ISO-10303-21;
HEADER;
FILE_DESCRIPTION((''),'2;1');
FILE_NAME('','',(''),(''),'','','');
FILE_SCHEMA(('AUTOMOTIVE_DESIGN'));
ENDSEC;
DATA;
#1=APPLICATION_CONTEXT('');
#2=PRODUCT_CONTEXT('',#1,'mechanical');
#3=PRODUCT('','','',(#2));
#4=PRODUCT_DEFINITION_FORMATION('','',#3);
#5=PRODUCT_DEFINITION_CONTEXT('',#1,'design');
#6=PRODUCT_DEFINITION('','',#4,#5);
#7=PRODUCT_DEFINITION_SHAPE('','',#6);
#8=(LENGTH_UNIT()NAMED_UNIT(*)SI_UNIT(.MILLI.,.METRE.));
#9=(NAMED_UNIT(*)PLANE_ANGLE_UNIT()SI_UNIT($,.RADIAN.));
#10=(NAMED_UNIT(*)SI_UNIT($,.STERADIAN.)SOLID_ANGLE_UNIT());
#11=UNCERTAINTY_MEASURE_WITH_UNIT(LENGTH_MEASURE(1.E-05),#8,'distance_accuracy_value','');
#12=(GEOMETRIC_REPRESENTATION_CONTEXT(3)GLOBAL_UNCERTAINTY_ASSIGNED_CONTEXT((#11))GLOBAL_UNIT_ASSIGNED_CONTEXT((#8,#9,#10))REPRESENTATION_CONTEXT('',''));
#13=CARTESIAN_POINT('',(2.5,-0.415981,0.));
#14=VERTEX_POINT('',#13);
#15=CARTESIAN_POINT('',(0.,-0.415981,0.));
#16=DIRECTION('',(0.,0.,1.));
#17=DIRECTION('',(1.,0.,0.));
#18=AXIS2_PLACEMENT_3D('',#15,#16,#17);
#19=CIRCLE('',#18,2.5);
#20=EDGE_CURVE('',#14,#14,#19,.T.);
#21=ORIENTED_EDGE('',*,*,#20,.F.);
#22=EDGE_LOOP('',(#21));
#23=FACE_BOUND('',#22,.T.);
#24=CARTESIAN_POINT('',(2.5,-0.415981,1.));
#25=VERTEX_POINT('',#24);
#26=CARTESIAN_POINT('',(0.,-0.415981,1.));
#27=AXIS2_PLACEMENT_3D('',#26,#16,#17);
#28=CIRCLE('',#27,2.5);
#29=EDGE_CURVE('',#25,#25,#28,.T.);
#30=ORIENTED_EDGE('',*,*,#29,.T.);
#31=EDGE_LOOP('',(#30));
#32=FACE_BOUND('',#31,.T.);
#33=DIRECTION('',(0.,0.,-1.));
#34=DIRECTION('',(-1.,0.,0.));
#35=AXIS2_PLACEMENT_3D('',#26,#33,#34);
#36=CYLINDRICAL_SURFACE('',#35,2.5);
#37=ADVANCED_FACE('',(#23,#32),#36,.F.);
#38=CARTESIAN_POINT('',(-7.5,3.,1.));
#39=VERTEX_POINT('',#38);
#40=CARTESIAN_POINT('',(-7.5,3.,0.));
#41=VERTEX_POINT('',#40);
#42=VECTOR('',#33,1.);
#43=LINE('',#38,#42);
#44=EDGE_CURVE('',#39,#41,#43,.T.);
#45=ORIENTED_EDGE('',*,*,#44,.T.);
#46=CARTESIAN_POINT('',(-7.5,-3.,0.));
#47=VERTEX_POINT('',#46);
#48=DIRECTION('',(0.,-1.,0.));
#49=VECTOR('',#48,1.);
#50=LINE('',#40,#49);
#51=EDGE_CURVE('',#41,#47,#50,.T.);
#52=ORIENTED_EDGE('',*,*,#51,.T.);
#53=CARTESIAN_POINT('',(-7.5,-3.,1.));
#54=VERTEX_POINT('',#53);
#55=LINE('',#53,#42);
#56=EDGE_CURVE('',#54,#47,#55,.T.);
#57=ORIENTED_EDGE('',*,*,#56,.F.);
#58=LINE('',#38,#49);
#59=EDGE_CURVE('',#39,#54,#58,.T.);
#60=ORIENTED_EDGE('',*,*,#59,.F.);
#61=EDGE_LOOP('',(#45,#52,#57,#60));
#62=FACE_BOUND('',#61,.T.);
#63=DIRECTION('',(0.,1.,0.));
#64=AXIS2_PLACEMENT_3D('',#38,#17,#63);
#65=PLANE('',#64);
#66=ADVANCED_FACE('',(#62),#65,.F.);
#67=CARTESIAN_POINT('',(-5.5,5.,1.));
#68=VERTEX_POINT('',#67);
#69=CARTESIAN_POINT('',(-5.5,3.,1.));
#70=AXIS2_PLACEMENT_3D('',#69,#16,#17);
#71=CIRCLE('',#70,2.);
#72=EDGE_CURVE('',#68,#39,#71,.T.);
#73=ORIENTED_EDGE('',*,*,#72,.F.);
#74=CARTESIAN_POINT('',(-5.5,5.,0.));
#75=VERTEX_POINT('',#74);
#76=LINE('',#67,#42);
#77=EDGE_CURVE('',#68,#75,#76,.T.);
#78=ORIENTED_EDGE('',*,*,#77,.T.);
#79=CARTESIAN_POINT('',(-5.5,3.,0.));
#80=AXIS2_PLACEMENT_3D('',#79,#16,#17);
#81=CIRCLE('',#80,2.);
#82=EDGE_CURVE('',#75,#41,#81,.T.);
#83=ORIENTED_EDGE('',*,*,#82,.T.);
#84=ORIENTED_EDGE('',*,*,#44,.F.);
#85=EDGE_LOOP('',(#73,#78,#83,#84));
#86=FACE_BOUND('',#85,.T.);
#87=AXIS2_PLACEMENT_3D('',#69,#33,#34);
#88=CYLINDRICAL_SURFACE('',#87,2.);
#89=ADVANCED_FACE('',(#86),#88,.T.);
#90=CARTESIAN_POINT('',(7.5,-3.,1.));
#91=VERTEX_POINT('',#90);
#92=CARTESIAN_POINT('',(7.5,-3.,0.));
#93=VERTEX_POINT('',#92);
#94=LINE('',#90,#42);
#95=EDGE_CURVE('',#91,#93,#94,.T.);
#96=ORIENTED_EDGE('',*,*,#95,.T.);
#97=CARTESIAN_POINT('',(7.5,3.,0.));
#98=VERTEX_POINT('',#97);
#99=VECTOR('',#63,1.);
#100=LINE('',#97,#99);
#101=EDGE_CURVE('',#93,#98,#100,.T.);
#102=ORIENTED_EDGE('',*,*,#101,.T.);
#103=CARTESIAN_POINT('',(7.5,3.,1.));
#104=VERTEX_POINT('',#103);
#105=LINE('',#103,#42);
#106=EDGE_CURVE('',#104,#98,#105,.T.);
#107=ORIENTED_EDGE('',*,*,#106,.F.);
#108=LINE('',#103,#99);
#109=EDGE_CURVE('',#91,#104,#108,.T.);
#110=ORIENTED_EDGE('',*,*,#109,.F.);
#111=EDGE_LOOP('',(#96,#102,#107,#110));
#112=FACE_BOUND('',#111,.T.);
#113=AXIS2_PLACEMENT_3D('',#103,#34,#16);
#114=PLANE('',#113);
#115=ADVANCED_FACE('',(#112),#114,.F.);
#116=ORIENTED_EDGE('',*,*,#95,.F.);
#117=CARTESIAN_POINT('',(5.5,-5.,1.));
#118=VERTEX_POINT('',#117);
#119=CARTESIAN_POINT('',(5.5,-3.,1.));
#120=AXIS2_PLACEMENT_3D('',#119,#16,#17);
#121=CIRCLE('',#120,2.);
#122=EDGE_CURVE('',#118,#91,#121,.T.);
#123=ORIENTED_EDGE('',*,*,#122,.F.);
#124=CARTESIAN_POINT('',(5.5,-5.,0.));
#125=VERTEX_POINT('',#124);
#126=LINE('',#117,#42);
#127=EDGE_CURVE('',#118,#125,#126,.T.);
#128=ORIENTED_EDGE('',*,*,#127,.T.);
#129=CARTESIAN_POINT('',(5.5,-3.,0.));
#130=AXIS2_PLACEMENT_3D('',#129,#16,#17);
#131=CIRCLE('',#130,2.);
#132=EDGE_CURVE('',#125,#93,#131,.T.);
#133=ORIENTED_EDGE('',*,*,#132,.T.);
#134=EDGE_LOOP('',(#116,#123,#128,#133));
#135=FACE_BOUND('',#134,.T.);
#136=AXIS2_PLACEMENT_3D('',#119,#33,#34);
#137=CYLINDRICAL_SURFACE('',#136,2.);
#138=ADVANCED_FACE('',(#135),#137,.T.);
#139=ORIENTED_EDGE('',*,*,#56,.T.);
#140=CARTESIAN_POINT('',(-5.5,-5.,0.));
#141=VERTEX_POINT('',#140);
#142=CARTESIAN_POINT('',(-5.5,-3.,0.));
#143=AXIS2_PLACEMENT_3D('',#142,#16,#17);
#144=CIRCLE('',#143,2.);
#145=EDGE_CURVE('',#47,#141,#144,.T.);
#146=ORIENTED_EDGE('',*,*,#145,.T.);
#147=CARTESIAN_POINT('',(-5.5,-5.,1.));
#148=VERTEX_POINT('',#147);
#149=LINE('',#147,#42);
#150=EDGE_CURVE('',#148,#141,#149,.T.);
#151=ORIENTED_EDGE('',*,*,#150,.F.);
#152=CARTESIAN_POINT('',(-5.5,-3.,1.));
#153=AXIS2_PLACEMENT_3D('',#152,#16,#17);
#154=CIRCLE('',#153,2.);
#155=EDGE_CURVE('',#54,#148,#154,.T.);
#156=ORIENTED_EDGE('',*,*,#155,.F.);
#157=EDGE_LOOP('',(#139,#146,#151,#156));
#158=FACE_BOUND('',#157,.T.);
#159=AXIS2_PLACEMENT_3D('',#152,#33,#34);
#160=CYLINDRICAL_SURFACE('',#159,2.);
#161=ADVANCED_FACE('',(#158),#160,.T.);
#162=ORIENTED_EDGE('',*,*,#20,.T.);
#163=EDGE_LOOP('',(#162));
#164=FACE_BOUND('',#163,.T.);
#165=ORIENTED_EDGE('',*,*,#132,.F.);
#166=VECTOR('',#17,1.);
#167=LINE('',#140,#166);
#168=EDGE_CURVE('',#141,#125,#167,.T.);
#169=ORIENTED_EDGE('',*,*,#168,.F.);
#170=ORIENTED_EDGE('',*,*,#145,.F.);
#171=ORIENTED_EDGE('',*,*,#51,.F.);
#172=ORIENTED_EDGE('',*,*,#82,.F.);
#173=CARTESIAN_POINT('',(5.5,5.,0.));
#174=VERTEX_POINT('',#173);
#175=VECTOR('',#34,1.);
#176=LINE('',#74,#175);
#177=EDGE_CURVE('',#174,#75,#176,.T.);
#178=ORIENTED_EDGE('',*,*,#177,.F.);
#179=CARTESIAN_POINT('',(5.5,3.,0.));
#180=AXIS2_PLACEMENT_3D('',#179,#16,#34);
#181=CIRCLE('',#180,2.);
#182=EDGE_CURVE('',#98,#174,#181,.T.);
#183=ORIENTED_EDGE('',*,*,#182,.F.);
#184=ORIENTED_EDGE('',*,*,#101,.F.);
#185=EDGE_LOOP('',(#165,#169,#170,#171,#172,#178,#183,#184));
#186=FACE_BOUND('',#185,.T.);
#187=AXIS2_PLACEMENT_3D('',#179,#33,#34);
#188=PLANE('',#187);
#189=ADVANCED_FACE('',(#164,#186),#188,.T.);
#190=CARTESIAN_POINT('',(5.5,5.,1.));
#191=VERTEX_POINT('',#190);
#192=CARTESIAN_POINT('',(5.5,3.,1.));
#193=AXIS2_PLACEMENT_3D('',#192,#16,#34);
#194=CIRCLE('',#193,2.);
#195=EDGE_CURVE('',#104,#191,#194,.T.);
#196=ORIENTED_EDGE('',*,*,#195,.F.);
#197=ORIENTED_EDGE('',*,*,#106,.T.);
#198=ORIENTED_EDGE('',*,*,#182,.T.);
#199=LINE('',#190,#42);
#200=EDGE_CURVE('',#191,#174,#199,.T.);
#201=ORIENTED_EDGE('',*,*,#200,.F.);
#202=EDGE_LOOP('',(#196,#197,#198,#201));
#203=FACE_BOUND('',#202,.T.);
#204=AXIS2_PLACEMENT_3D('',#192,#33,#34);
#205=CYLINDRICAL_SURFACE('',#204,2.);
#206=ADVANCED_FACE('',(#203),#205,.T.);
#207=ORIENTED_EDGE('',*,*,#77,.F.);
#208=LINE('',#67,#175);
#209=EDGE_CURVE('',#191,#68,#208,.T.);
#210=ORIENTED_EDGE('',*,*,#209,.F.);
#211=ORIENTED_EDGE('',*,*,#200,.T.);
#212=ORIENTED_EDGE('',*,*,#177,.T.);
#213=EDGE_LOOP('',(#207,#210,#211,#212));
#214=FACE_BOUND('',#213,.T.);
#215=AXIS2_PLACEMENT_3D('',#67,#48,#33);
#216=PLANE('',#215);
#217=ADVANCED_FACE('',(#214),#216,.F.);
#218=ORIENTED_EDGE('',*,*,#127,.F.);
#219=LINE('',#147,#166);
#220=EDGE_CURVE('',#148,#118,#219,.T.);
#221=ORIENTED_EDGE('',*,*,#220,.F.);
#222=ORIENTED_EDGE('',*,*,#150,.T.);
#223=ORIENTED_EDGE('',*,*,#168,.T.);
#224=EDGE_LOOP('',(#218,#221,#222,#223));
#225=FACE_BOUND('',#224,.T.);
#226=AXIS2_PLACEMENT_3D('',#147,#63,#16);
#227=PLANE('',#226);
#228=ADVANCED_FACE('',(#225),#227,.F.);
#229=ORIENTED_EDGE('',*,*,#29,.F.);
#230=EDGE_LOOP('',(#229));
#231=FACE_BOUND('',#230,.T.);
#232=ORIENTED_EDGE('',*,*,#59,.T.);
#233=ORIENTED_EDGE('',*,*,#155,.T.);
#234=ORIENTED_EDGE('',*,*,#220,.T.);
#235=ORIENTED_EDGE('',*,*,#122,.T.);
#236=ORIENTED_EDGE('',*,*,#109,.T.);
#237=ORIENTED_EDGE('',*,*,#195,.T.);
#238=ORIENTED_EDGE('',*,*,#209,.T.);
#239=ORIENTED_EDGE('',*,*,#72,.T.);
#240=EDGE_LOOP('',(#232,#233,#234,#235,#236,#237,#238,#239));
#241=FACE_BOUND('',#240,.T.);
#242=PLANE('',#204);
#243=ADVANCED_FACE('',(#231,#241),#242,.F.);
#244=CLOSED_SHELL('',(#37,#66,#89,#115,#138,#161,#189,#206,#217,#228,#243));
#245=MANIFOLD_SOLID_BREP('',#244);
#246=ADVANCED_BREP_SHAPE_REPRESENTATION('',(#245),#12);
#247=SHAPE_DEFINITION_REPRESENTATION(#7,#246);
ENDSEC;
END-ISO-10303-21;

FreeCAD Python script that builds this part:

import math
import FreeCAD as App
import Part
import Sketcher
Q = App.Units.Quantity

doc = App.newDocument("Part")
body = doc.addObject("PartDesign::Body", "Body")

# Sketch on XY plane
sketch1 = body.newObject("Sketcher::SketchObject", "Sketch")
sketch1.AttachmentSupport = (doc.getObject("XY_Plane"), [""])
sketch1.MapMode = "FlatFace"
sketch1.addGeometry([
    Part.LineSegment(App.Vector(5.5, 5, 0), App.Vector(-5.5, 5, 0)),  # 0
    Part.ArcOfCircle(Part.Circle(App.Vector(-5.5, 3, 0), App.Vector(0, 0, 1), 2), math.radians(90), math.radians(180)),  # 1
    Part.LineSegment(App.Vector(-7.5, 3, 0), App.Vector(-7.5, -3, 0)),  # 2
    Part.ArcOfCircle(Part.Circle(App.Vector(-5.5, -3, 0), App.Vector(0, 0, 1), 2), math.radians(-180), math.radians(-90)),  # 3
    Part.LineSegment(App.Vector(-5.5, -5, 0), App.Vector(5.5, -5, 0)),  # 4
    Part.ArcOfCircle(Part.Circle(App.Vector(5.5, -3, 0), App.Vector(0, 0, 1), 2), math.radians(-90), math.radians(0)),  # 5
    Part.LineSegment(App.Vector(7.5, -3, 0), App.Vector(7.5, 3, 0)),  # 6
    Part.ArcOfCircle(Part.Circle(App.Vector(5.5, 3, 0), App.Vector(0, 0, 1), 2), math.radians(0), math.radians(90)),  # 7
    Part.Circle(App.Vector(0, -0.415981, 0), App.Vector(0, 0, 1), 2.5),  # 8
], False)
sketch1.addConstraint([
    Sketcher.Constraint("Tangent", 0, 2, 1, 1),
    Sketcher.Constraint("Tangent", 1, 2, 2, 1),
    Sketcher.Constraint("Tangent", 2, 2, 3, 1),
    Sketcher.Constraint("Tangent", 3, 2, 4, 1),
    Sketcher.Constraint("Tangent", 4, 2, 5, 1),
    Sketcher.Constraint("Tangent", 5, 2, 6, 1),
    Sketcher.Constraint("Tangent", 6, 2, 7, 1),
    Sketcher.Constraint("Tangent", 7, 2, 0, 1),
    Sketcher.Constraint("Horizontal", 0),
    Sketcher.Constraint("Vertical", 2),
    Sketcher.Constraint("Horizontal", 4),
    Sketcher.Constraint("Vertical", 6),
    Sketcher.Constraint("Equal", 1, 3),
    Sketcher.Constraint("Equal", 3, 5),
    Sketcher.Constraint("Equal", 5, 7),
    Sketcher.Constraint("Symmetric", 1, 3, 5, 3, -1, 1),
    Sketcher.Constraint("PointOnObject", 8, 3, -2),
    Sketcher.Constraint("Diameter", 8, Q("5 mm")),
    Sketcher.Constraint("Radius", 1, Q("2 mm")),
    Sketcher.Constraint("DistanceX", 0, 2, 0, 1, Q("11 mm")),
    Sketcher.Constraint("DistanceY", 2, 2, 2, 1, Q("6 mm")),
    Sketcher.Constraint("DistanceY", 8, 3, -1, 1, Q("0.415981 mm")),
])
pad1 = body.newObject("PartDesign::Pad", "Pad")
pad1.Profile = sketch1
pad1.Length = 1

doc.recompute()
